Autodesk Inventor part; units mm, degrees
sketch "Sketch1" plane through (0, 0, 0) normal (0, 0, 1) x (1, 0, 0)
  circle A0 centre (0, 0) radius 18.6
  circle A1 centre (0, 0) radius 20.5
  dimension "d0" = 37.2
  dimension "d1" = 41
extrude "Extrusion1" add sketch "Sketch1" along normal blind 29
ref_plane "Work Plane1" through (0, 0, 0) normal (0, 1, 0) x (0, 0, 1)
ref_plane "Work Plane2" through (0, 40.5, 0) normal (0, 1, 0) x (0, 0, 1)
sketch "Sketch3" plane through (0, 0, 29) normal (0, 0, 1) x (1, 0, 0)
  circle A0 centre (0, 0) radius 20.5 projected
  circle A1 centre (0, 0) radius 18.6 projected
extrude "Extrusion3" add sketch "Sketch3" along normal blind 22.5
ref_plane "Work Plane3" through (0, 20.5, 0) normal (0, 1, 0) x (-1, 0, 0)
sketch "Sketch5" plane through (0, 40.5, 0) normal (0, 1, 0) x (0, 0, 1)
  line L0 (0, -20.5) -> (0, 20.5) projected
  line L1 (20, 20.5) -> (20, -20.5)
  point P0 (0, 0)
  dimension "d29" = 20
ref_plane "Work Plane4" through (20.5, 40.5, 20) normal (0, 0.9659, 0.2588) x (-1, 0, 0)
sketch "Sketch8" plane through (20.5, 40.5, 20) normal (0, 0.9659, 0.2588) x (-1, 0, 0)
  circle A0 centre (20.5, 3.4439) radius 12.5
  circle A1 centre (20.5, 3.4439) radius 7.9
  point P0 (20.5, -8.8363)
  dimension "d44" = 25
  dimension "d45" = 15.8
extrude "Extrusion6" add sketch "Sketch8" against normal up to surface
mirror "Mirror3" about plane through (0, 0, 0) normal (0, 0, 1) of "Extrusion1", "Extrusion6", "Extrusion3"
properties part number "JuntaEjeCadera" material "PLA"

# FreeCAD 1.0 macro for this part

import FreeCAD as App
import Part
import Sketcher
Q = App.Units.Quantity

doc = App.newDocument("Part")
body = doc.addObject("PartDesign::Body", "Body")

# Sketch on XY plane
sketch1 = body.newObject("Sketcher::SketchObject", "Sketch")
sketch1.AttachmentSupport = (doc.getObject("XY_Plane"), [""])
sketch1.MapMode = "FlatFace"
sketch1.addGeometry([
    Part.Circle(App.Vector(0, 0, 0), App.Vector(0, 0, 1), 20),
    Part.Circle(App.Vector(0, 0, 0), App.Vector(0, 0, 1), 19),
], False)
sketch1.addConstraint([
    Sketcher.Constraint("Coincident", 0, 3, -1, 1),
    Sketcher.Constraint("Coincident", 1, 3, -1, 1),
    Sketcher.Constraint("Diameter", 0, Q("41 mm")),
    Sketcher.Constraint("Diameter", 1, Q("37.2 mm")),
])
pad1 = body.newObject("PartDesign::Pad", "Pad")
pad1.Profile = sketch1
pad1.Length = 29

# Sketch on XY plane
sketch2 = body.newObject("Sketcher::SketchObject", "Sketch001")
sketch2.AttachmentSupport = (doc.getObject("XY_Plane"), [""])
sketch2.MapMode = "FlatFace"
sketch2.AttachmentOffset = App.Placement(App.Vector(0, 0, 29), App.Rotation())
sketch2.addGeometry([
    Part.Circle(App.Vector(0, 0, 0), App.Vector(0, 0, 1), 20),
    Part.Circle(App.Vector(0, 0, 0), App.Vector(0, 0, 1), 19),
], False)
sketch2.addConstraint([
    Sketcher.Constraint("Coincident", 0, 3, -1, 1),
    Sketcher.Constraint("Coincident", 1, 3, -1, 1),
    Sketcher.Constraint("Diameter", 0, Q("41 mm")),
    Sketcher.Constraint("Diameter", 1, Q("37.2 mm")),
])
pad2 = body.newObject("PartDesign::Pad", "Pad001")
pad2.Profile = sketch2
pad2.Length = 22.5

# Sketch on an angled plane
sketch3 = body.newObject("Sketcher::SketchObject", "Sketch002")
sketch3.Placement = App.Placement(App.Vector(20.5, 40.5, 20), App.Rotation(App.Vector(-1, 0, 0), App.Vector(0, -0.258819045, 0.965925826), App.Vector(0, 0.965925826, 0.258819045), "ZXY"))
sketch3.addGeometry([
    Part.Circle(App.Vector(20, 3, 0), App.Vector(0, 0, 1), 12),
    Part.Circle(App.Vector(20, 3, 0), App.Vector(0, 0, 1), 8),
], False)
sketch3.addConstraint([
    Sketcher.Constraint("Coincident", 1, 3, 0, 3),
    Sketcher.Constraint("Diameter", 0, Q("25 mm")),
    Sketcher.Constraint("Diameter", 1, Q("15.8 mm")),
    Sketcher.Constraint("DistanceX", -1, 1, 0, 3, Q("20.5 mm")),
    Sketcher.Constraint("DistanceY", -1, 1, 0, 3, Q("3.444 mm")),
])
pad3 = body.newObject("PartDesign::Pad", "Pad002")
pad3.Profile = sketch3
pad3.Type = "UpToFirst"
pad3.Reversed = True
doc.recompute()

mirrored = body.newObject("PartDesign::Mirrored", "Mirrored")
mirrored.Originals = [pad1, pad3, pad2]
mirrored.MirrorPlane = (doc.getObject("XY_Plane"), [""])
body.Tip = mirrored

doc.recompute()
